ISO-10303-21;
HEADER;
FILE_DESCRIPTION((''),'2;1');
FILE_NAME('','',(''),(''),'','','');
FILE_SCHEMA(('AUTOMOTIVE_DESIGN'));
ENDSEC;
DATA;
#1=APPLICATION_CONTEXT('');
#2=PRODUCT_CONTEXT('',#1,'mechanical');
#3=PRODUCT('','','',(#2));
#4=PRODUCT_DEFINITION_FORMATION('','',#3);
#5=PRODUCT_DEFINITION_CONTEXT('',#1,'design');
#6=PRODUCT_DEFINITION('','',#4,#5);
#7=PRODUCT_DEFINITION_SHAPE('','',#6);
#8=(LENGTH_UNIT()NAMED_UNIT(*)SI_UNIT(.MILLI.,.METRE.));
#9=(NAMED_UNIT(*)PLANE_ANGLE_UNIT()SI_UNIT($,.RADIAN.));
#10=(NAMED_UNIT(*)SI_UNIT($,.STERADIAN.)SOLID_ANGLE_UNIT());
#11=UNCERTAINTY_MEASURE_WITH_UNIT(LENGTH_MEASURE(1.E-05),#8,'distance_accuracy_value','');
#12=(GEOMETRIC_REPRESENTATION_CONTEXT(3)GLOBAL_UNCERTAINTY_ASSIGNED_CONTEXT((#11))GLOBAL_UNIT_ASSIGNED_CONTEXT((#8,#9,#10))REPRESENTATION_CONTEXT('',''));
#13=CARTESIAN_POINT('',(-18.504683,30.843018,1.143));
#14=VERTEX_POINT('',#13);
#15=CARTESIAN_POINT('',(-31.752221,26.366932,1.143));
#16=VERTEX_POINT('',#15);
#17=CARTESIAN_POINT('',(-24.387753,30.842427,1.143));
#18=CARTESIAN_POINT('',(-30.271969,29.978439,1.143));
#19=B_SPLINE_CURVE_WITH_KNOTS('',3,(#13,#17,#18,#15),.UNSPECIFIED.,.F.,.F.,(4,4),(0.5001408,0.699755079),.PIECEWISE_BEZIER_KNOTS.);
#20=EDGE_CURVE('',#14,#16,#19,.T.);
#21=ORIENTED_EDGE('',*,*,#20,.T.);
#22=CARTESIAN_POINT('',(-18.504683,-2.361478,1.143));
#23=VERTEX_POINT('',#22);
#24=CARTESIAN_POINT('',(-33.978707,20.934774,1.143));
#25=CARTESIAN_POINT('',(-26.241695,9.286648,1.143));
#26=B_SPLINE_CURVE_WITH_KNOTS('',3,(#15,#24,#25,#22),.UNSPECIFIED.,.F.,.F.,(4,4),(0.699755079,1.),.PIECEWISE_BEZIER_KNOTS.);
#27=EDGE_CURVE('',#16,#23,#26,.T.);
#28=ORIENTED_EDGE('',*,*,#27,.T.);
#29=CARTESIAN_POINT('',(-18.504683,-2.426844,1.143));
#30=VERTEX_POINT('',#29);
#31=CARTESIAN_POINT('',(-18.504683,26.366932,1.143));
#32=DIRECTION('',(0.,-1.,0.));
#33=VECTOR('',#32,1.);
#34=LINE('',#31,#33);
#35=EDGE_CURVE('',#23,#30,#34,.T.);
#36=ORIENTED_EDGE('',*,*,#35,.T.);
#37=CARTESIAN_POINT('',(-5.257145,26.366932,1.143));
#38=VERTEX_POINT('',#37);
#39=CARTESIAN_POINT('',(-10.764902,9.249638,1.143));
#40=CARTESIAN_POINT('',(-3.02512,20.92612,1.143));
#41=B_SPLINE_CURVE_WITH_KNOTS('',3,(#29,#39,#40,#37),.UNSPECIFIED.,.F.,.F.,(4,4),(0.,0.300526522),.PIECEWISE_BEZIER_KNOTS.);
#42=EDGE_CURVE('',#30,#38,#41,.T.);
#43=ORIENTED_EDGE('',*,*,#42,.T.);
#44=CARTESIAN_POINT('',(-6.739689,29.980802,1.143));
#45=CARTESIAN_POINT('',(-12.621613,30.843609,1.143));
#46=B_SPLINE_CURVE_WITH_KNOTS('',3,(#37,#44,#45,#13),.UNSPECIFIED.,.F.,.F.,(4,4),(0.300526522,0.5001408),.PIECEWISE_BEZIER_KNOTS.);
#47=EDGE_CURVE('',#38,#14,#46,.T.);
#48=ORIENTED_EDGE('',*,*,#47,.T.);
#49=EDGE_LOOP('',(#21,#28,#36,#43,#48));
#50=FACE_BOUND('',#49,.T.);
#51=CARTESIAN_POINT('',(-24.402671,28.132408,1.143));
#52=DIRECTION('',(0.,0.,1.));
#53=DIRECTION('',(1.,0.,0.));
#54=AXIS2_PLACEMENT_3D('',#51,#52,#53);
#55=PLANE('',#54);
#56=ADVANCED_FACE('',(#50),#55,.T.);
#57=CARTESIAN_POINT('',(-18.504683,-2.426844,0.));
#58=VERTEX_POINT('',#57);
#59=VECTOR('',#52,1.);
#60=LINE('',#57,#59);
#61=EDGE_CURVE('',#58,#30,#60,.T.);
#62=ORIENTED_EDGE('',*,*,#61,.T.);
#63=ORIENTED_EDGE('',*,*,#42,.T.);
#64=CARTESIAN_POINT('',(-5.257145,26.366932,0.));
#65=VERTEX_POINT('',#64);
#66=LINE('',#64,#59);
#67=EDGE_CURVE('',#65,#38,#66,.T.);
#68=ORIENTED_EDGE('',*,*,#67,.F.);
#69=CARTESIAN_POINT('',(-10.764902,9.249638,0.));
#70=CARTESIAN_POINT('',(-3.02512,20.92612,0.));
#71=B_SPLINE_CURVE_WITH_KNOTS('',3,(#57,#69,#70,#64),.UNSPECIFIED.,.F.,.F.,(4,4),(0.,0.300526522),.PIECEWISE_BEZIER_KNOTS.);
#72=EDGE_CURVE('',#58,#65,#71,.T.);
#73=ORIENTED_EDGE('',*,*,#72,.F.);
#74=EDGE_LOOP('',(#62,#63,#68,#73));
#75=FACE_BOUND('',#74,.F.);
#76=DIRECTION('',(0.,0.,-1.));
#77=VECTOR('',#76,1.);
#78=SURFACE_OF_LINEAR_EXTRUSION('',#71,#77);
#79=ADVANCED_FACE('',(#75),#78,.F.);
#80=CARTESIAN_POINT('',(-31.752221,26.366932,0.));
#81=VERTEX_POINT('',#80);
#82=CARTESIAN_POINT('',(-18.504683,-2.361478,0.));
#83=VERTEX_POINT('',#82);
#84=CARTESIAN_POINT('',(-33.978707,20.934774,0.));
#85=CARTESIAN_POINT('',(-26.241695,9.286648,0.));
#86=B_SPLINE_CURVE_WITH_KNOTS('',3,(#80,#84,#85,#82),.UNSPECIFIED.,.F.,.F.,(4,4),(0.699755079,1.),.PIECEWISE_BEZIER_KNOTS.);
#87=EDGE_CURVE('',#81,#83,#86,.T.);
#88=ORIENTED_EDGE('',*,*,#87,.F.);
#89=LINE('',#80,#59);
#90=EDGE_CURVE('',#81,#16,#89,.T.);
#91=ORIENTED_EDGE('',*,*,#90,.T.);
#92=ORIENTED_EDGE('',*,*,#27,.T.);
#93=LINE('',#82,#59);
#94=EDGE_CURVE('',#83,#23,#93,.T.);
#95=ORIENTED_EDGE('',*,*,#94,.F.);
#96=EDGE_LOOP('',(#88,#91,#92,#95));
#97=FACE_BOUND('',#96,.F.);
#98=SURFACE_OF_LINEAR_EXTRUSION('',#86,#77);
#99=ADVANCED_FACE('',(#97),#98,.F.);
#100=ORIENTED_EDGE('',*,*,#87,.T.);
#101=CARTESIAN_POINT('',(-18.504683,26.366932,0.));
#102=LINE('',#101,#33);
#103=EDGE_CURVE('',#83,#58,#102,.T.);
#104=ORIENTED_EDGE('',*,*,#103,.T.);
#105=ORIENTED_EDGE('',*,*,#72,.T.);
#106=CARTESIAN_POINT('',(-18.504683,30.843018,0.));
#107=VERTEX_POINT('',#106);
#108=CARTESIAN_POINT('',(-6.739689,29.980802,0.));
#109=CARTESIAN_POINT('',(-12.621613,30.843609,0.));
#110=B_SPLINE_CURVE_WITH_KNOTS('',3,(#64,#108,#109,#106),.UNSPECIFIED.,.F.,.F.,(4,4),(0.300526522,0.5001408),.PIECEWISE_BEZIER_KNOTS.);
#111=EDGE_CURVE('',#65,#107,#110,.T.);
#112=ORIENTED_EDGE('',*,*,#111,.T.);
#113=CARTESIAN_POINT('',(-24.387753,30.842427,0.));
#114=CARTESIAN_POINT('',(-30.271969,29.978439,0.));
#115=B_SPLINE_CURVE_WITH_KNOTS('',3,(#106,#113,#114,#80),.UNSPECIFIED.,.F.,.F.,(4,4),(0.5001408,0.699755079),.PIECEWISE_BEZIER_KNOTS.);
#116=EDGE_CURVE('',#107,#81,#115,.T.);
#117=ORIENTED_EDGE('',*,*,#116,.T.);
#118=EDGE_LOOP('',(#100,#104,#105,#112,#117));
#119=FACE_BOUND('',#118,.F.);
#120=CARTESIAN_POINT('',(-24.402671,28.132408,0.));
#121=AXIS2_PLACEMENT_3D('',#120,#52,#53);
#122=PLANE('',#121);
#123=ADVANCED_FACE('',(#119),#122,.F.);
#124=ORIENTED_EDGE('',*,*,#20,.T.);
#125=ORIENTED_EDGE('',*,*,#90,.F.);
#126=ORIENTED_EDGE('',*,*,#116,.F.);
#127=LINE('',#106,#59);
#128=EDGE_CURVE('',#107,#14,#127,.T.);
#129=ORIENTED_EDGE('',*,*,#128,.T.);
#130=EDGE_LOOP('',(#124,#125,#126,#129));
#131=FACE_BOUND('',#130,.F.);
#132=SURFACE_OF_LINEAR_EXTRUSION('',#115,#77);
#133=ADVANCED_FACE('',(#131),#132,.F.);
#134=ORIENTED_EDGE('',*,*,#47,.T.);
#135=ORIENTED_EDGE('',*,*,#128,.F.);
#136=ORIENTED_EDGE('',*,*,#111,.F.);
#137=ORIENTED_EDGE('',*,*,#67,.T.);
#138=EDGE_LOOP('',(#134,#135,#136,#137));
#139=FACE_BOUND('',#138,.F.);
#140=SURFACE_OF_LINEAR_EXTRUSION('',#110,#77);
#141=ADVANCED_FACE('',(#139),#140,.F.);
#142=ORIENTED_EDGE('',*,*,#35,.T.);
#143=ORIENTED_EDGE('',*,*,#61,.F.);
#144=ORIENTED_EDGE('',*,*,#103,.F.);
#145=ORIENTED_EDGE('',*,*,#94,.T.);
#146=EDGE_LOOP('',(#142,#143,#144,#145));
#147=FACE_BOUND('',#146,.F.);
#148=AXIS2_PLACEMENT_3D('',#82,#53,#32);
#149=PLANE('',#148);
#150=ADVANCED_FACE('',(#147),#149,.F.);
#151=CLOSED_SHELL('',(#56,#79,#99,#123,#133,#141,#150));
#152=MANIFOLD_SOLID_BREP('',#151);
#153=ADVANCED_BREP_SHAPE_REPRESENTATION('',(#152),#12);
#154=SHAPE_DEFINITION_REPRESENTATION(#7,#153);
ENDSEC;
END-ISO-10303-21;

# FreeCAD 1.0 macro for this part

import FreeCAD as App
import Part
import Sketcher

V = App.Vector
Q = App.Units.Quantity

doc = App.newDocument("Part")
body = doc.addObject("PartDesign::Body", "Body")

sketch1 = body.newObject("Sketcher::SketchObject", "Sketch")
sketch1.AttachmentSupport = (doc.getObject("XY_Plane"), [""])
sketch1.MapMode = "FlatFace"
sketch1.addGeometry(Part.BSplineCurve([V(-18.504683, 30.843018, 0), V(-24.387753, 30.842427, 0), V(-30.271969, 29.978439, 0), V(-31.752221, 26.366932, 0)], [4, 4], [0.5001408, 0.699755079], False, 3, [1, 1, 1, 1], False), False)
sketch1.addGeometry(Part.BSplineCurve([V(-31.752221, 26.366932, 0), V(-33.978707, 20.934774, 0), V(-26.241695, 9.286648, 0), V(-18.504683, -2.361478, 0)], [4, 4], [0.699755079, 1], False, 3, [1, 1, 1, 1], False), False)
sketch1.addGeometry(Part.LineSegment(V(-18.504683, -2.361478, 0), V(-18.504683, -2.426844, 0)), False)
sketch1.addGeometry(Part.BSplineCurve([V(-18.504683, -2.426844, 0), V(-10.764902, 9.249638, 0), V(-3.02512, 20.92612, 0), V(-5.257145, 26.366932, 0)], [4, 4], [0, 0.300526522], False, 3, [1, 1, 1, 1], False), False)
sketch1.addGeometry(Part.BSplineCurve([V(-5.257145, 26.366932, 0), V(-6.739689, 29.980802, 0), V(-12.621613, 30.843609, 0), V(-18.504683, 30.843018, 0)], [4, 4], [0.300526522, 0.5001408], False, 3, [1, 1, 1, 1], False), False)
sketch1.addConstraint(Sketcher.Constraint("Block", 0))
sketch1.addConstraint(Sketcher.Constraint("Block", 1))
sketch1.addConstraint(Sketcher.Constraint("Block", 3))
sketch1.addConstraint(Sketcher.Constraint("Block", 4))
sketch1.addConstraint(Sketcher.Constraint("Coincident", 1, 2, 2, 1))
sketch1.addConstraint(Sketcher.Constraint("Coincident", 2, 2, 3, 1))
pad1 = body.newObject("PartDesign::Pad", "Pad")
pad1.Profile = sketch1
pad1.Length = Q("0.045 in")

doc.recompute()
